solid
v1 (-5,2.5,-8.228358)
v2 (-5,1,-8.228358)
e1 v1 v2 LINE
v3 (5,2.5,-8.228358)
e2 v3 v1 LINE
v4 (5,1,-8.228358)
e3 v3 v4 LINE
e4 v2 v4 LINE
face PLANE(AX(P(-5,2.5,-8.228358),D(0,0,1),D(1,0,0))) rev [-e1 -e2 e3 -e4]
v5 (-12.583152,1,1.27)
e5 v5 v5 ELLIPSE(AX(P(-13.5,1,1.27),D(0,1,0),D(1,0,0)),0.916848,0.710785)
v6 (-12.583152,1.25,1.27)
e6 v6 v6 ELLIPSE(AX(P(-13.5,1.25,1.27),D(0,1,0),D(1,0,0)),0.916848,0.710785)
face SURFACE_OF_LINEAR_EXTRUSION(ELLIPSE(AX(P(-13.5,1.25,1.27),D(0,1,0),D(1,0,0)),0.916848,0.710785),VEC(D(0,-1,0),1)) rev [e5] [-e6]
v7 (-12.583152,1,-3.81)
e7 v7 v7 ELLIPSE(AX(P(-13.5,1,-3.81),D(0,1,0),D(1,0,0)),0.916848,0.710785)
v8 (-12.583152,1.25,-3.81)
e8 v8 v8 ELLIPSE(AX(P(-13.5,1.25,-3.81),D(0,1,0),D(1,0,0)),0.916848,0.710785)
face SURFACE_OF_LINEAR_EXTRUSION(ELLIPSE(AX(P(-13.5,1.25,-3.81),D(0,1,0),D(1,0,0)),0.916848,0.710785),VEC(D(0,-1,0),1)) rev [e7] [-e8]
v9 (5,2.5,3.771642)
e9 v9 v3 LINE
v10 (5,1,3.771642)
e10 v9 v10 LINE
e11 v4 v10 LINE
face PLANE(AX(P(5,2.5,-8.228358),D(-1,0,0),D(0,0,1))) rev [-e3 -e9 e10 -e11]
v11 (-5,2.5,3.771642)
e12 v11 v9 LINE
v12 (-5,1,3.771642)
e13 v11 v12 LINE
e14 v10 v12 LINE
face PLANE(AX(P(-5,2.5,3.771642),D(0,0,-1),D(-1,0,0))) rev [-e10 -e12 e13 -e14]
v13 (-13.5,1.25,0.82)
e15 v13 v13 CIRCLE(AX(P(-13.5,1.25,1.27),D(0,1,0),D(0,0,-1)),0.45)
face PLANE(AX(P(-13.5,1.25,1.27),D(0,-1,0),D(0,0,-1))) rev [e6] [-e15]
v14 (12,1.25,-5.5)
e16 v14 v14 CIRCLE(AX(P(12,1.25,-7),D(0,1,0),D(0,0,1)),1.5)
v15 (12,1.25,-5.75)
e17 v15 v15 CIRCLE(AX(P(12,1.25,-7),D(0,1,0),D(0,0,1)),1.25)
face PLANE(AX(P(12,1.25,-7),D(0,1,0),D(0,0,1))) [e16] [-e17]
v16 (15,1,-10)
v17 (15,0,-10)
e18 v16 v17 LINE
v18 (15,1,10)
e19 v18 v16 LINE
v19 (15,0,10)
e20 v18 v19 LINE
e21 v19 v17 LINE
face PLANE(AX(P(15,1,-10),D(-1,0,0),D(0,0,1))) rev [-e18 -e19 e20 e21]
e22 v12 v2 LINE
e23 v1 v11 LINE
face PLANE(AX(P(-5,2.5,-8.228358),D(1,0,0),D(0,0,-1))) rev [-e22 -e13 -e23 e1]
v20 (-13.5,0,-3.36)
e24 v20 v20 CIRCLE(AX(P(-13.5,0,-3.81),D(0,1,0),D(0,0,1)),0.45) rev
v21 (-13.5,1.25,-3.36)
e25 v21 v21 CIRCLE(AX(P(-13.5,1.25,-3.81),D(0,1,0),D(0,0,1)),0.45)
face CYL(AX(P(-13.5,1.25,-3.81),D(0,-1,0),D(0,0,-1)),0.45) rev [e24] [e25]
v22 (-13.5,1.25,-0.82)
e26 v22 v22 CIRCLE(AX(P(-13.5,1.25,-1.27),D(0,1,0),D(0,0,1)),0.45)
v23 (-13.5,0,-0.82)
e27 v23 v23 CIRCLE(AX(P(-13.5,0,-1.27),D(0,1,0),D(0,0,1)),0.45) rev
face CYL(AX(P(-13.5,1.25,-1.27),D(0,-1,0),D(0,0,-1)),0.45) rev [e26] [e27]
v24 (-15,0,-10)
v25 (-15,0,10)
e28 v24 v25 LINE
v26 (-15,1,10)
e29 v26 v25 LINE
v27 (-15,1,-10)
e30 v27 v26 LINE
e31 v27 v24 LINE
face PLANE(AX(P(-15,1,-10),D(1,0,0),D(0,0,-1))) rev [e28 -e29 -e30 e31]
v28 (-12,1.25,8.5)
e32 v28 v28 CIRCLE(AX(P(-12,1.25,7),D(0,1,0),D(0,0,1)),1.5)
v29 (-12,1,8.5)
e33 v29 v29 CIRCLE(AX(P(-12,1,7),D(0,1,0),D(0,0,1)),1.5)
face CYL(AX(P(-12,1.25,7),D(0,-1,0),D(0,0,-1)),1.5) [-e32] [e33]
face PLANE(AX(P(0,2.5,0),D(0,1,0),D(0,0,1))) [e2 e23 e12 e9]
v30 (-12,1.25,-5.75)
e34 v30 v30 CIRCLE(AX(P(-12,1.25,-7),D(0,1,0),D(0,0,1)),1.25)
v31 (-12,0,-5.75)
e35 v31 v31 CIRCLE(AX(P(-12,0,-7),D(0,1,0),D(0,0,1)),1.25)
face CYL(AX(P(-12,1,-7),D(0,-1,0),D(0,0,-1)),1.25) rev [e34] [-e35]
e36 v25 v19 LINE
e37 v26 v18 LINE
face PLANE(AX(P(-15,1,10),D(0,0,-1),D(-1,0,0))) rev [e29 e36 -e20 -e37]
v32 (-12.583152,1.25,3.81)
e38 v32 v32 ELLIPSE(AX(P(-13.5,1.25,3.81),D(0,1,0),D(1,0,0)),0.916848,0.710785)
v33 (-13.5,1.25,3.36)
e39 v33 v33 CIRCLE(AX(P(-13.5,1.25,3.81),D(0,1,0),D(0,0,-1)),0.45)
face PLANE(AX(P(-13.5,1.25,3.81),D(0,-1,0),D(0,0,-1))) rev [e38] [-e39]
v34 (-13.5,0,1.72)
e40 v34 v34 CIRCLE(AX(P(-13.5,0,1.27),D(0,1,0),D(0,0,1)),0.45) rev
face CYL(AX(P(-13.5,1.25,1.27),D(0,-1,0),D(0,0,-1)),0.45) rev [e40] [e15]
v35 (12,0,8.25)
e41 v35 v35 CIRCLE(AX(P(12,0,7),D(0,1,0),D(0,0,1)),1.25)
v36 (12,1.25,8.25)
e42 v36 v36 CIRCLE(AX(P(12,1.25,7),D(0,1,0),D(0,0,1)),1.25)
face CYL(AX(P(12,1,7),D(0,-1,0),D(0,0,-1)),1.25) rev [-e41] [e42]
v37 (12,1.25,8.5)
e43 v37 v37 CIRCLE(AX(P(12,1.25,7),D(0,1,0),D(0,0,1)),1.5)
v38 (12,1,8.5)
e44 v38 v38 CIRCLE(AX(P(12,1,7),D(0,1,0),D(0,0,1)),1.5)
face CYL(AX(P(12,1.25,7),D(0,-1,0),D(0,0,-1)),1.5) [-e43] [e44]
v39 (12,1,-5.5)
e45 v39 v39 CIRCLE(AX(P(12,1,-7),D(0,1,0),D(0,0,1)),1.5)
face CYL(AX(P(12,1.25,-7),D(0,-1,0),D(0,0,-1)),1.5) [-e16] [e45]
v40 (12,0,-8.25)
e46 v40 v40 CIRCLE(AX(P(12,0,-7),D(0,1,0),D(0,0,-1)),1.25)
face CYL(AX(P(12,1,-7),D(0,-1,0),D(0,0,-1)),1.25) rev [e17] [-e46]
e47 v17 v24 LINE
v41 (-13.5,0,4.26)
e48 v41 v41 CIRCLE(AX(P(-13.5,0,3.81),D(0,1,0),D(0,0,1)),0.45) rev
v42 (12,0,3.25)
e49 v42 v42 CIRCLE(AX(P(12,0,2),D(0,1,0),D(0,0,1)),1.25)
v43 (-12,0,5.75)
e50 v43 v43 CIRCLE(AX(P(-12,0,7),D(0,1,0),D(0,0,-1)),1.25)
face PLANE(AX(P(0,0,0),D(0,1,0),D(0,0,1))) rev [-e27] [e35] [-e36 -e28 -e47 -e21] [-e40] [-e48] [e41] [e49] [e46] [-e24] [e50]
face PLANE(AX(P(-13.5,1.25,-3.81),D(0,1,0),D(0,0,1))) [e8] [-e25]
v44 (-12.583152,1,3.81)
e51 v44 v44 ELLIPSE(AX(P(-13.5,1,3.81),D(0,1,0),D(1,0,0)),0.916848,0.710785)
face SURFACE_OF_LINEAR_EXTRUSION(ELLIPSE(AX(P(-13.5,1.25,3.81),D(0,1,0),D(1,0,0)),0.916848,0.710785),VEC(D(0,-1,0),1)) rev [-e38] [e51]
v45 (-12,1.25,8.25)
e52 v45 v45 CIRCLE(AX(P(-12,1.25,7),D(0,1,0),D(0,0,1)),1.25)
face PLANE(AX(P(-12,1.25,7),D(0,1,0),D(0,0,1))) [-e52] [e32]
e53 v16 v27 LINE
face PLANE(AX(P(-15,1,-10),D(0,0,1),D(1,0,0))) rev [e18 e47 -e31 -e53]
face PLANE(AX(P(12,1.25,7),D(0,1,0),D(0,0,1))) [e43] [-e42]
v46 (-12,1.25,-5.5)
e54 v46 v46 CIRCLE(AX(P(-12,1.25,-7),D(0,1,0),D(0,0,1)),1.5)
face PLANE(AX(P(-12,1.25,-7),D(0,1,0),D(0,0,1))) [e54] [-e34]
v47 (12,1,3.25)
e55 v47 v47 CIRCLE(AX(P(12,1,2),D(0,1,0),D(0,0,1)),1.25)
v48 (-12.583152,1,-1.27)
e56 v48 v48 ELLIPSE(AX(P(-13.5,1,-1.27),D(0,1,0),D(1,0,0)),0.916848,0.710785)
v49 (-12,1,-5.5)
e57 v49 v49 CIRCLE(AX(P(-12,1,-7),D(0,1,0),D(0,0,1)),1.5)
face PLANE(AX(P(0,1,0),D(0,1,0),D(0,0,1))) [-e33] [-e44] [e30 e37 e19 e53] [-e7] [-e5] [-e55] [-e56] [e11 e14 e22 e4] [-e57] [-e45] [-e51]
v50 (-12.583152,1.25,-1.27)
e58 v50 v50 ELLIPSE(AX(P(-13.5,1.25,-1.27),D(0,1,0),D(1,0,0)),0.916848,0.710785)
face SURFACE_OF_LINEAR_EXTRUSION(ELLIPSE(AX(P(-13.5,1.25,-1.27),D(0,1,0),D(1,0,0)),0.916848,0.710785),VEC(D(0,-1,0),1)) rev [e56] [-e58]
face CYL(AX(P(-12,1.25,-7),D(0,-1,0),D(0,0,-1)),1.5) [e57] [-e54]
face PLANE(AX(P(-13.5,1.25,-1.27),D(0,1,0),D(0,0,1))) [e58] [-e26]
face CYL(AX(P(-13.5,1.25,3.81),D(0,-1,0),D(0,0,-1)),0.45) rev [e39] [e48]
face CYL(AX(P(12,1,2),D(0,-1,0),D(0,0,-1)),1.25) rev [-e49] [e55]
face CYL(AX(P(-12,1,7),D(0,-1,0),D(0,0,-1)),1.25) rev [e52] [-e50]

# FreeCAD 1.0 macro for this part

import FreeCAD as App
import Part
import Sketcher
from FreeCAD import Vector
Q = App.Units.Quantity


def add_polygon(sketch, points):
    """Adds a closed chain of lines whose ends are joined by coincident constraints."""
    first, n = sketch.GeometryCount, len(points)
    for a, b in zip(points, points[1:] + points[:1]):
        sketch.addGeometry(Part.LineSegment(App.Vector(*a, 0), App.Vector(*b, 0)), False)
    for i in range(n):
        sketch.addConstraint(Sketcher.Constraint("Coincident", first + i, 2, first + (i + 1) % n, 1))

doc = App.newDocument("Part")
params = doc.addObject("Spreadsheet::Sheet", "Params")
for row, (alias, value) in enumerate([
    ("sketch1_diameter", "2.5 mm"),
    ("sketch1_width", "30 mm"),
    ("sketch1_height", "20 mm"),
    ("pad1_length", "1 mm"),
    ("sketch2_width", "10 mm"),
    ("sketch2_height", "12 mm"),
    ("pad2_length", "2.5 mm"),
    ("sketch3_diameter", "3 mm"),
    ("sketch3_diameter2", "2.5 mm"),
    ("sketch3_diameter3", "0.9 mm"),
    ("pad3_length", "0.25 mm"),
    ("sketch4_diameter", "0.9 mm"),
], start=1):
    params.set(f"A{row}", alias)
    params.set(f"B{row}", "=" + value)
    params.setAlias(f"B{row}", alias)

body = doc.addObject("PartDesign::Body", "Body")

# Sketch on XZ plane
sketch1 = body.newObject("Sketcher::SketchObject", "Sketch")
sketch1.AttachmentSupport = (doc.getObject("XZ_Plane"), [""])
sketch1.MapMode = "FlatFace"
add_polygon(sketch1, [(-15, -10), (-15, 10), (15, 10), (15, -10)])  # lines 0-3
sketch1.addGeometry(Part.Circle(Vector(-12, 7, 0), Vector(0, 0, 1), 1.2), False)  # 4
sketch1.addGeometry(Part.Circle(Vector(12, 7, 0), Vector(0, 0, 1), 1.2), False)  # 5
sketch1.addGeometry(Part.Circle(Vector(12, 2, 0), Vector(0, 0, 1), 1.2), False)  # 6
sketch1.addGeometry(Part.Circle(Vector(-12, -7, 0), Vector(0, 0, 1), 1.2), False)  # 7
sketch1.addGeometry(Part.Circle(Vector(12, -7, 0), Vector(0, 0, 1), 1.2), False)  # 8
sketch1.addConstraint([
    Sketcher.Constraint("Vertical", 0),
    Sketcher.Constraint("Horizontal", 1),
    Sketcher.Constraint("Vertical", 2),
    Sketcher.Constraint("Horizontal", 3),
    Sketcher.Constraint("Equal", 4, 5),
    Sketcher.Constraint("Equal", 5, 6),
    Sketcher.Constraint("Equal", 6, 7),
    Sketcher.Constraint("Equal", 7, 8),
    Sketcher.Constraint("Symmetric", 5, 3, 7, 3, -1, 1),
    Sketcher.Constraint("Symmetric", 4, 3, 8, 3, -1, 1),
    Sketcher.Constraint("Symmetric", 0, 2, 2, 2, -1, 1),
    Sketcher.Constraint("Symmetric", 4, 3, 5, 3, -2),
    Sketcher.Constraint("Vertical", 5, 3, 6, 3),
    Sketcher.Constraint("Diameter", 4, Q("2.5 mm")),
    Sketcher.Constraint("DistanceX", 1, 1, 1, 2, Q("30 mm")),
    Sketcher.Constraint("DistanceY", 0, 1, 0, 2, Q("20 mm")),
    Sketcher.Constraint("DistanceX", 4, 3, -1, 1, Q("12 mm")),
    Sketcher.Constraint("DistanceY", -1, 1, 4, 3, Q("7 mm")),
    Sketcher.Constraint("DistanceY", -1, 1, 6, 3, Q("2 mm")),
])
sketch1.setExpression("Constraints[17]", "Params.sketch1_diameter")
sketch1.setExpression("Constraints[18]", "Params.sketch1_width")
sketch1.setExpression("Constraints[19]", "Params.sketch1_height")
pad1 = body.newObject("PartDesign::Pad", "Pad")
pad1.Profile = sketch1
pad1.setExpression("Length", "Params.pad1_length")
pad1.Reversed = True

# Sketch on XZ plane
sketch2 = body.newObject("Sketcher::SketchObject", "Sketch001")
sketch2.AttachmentSupport = (doc.getObject("XZ_Plane"), [""])
sketch2.MapMode = "FlatFace"
add_polygon(sketch2, [(-5, -8), (-5, 4), (5, 4), (5, -8)])  # lines 0-3
sketch2.addConstraint([
    Sketcher.Constraint("Vertical", 0),
    Sketcher.Constraint("Horizontal", 1),
    Sketcher.Constraint("Vertical", 2),
    Sketcher.Constraint("Horizontal", 3),
    Sketcher.Constraint("DistanceX", 1, 1, 1, 2, Q("10 mm")),
    Sketcher.Constraint("DistanceY", 0, 1, 0, 2, Q("12 mm")),
    Sketcher.Constraint("DistanceX", 0, 2, -1, 1, Q("5 mm")),
    Sketcher.Constraint("DistanceY", -1, 1, 0, 2, Q("3.771642 mm")),
])
sketch2.setExpression("Constraints[8]", "Params.sketch2_width")
sketch2.setExpression("Constraints[9]", "Params.sketch2_height")
pad2 = body.newObject("PartDesign::Pad", "Pad001")
pad2.Profile = sketch2
pad2.setExpression("Length", "Params.pad2_length")
pad2.Reversed = True

# Sketch on XZ plane
sketch3 = body.newObject("Sketcher::SketchObject", "Sketch002")
sketch3.AttachmentSupport = (doc.getObject("XZ_Plane"), [""])
sketch3.MapMode = "FlatFace"
sketch3.AttachmentOffset = App.Placement(Vector(0, 0, -1), App.Rotation())
sketch3.addGeometry([
    Part.Circle(Vector(-12, -7, 0), Vector(0, 0, 1), 1.5),  # 0
    Part.Circle(Vector(-12, -7, 0), Vector(0, 0, 1), 1.25),  # 1
    Part.Circle(Vector(12, -7, 0), Vector(0, 0, 1), 1.5),  # 2
    Part.Circle(Vector(12, -7, 0), Vector(0, 0, 1), 1.25),  # 3
    Part.Circle(Vector(12, 7, 0), Vector(0, 0, 1), 1.5),  # 4
    Part.Circle(Vector(12, 7, 0), Vector(0, 0, 1), 1.25),  # 5
    Part.Circle(Vector(-12, 7, 0), Vector(0, 0, 1), 1.5),  # 6
    Part.Circle(Vector(-12, 7, 0), Vector(0, 0, 1), 1.25),  # 7
    Part.Ellipse(Vector(-12.583152, -3.81, 0), Vector(-13.5, -3.099215, 0), Vector(-13.5, -3.81, 0)),  # 8
    Part.Circle(Vector(-13.5, -3.81, 0), Vector(0, 0, 1), 0.45),  # 9
    Part.Ellipse(Vector(-12.583152, -1.27, 0), Vector(-13.5, -0.559215, 0), Vector(-13.5, -1.27, 0)),  # 10
    Part.Circle(Vector(-13.5, -1.27, 0), Vector(0, 0, 1), 0.45),  # 11
    Part.Ellipse(Vector(-12.583152, 1.27, 0), Vector(-13.5, 1.980785, 0), Vector(-13.5, 1.27, 0)),  # 12
    Part.Circle(Vector(-13.5, 1.27, 0), Vector(0, 0, 1), 0.45),  # 13
    Part.Ellipse(Vector(-12.583152, 3.81, 0), Vector(-13.5, 4.520785, 0), Vector(-13.5, 3.81, 0)),  # 14
    Part.Circle(Vector(-13.5, 3.81, 0), Vector(0, 0, 1), 0.45),  # 15
], False)
sketch3.addConstraint([
    Sketcher.Constraint("Block", 8),
    Sketcher.Constraint("Block", 10),
    Sketcher.Constraint("Block", 12),
    Sketcher.Constraint("Block", 14),
    Sketcher.Constraint("Coincident", 1, 3, 0, 3),
    Sketcher.Constraint("Coincident", 3, 3, 2, 3),
    Sketcher.Constraint("Coincident", 5, 3, 4, 3),
    Sketcher.Constraint("Coincident", 7, 3, 6, 3),
    Sketcher.Constraint("Equal", 0, 2),
    Sketcher.Constraint("Equal", 1, 3),
    Sketcher.Constraint("Equal", 2, 4),
    Sketcher.Constraint("Equal", 3, 5),
    Sketcher.Constraint("Equal", 4, 6),
    Sketcher.Constraint("Equal", 5, 7),
    Sketcher.Constraint("Equal", 9, 11),
    Sketcher.Constraint("Equal", 11, 13),
    Sketcher.Constraint("Equal", 13, 15),
    Sketcher.Constraint("Symmetric", 0, 3, 4, 3, -1, 1),
    Sketcher.Constraint("Symmetric", 2, 3, 6, 3, -1, 1),
    Sketcher.Constraint("Symmetric", 0, 3, 2, 3, -2),
    Sketcher.Constraint("Symmetric", 11, 3, 13, 3, -1),
    Sketcher.Constraint("Symmetric", 9, 3, 15, 3, -1),
    Sketcher.Constraint("Vertical", 9, 3, 11, 3),
    Sketcher.Constraint("Diameter", 0, Q("3 mm")),
    Sketcher.Constraint("Diameter", 1, Q("2.5 mm")),
    Sketcher.Constraint("Diameter", 9, Q("0.9 mm")),
    Sketcher.Constraint("DistanceX", 0, 3, -1, 1, Q("12 mm")),
    Sketcher.Constraint("DistanceY", 0, 3, -1, 1, Q("7 mm")),
    Sketcher.Constraint("DistanceX", 9, 3, -1, 1, Q("13.5 mm")),
    Sketcher.Constraint("DistanceY", 9, 3, -1, 1, Q("3.81 mm")),
    Sketcher.Constraint("DistanceY", 11, 3, -1, 1, Q("1.27 mm")),
])
sketch3.setExpression("Constraints[23]", "Params.sketch3_diameter")
sketch3.setExpression("Constraints[24]", "Params.sketch3_diameter2")
sketch3.setExpression("Constraints[25]", "Params.sketch3_diameter3")
pad3 = body.newObject("PartDesign::Pad", "Pad002")
pad3.Profile = sketch3
pad3.setExpression("Length", "Params.pad3_length")
pad3.Reversed = True

# Sketch on XZ plane
sketch4 = body.newObject("Sketcher::SketchObject", "Sketch003")
sketch4.AttachmentSupport = (doc.getObject("XZ_Plane"), [""])
sketch4.MapMode = "FlatFace"
sketch4.addGeometry([
    Part.Circle(Vector(-13.5, -3.81, 0), Vector(0, 0, 1), 0.45),
    Part.Circle(Vector(-13.5, -1.27, 0), Vector(0, 0, 1), 0.45),
    Part.Circle(Vector(-13.5, 1.27, 0), Vector(0, 0, 1), 0.45),
    Part.Circle(Vector(-13.5, 3.81, 0), Vector(0, 0, 1), 0.45),
], False)
sketch4.addConstraint([
    Sketcher.Constraint("Equal", 0, 1),
    Sketcher.Constraint("Equal", 1, 2),
    Sketcher.Constraint("Equal", 2, 3),
    Sketcher.Constraint("Symmetric", 1, 3, 2, 3, -1),
    Sketcher.Constraint("Symmetric", 0, 3, 3, 3, -1),
    Sketcher.Constraint("Vertical", 0, 3, 1, 3),
    Sketcher.Constraint("Diameter", 0, Q("0.9 mm")),
    Sketcher.Constraint("DistanceX", 0, 3, -1, 1, Q("13.5 mm")),
    Sketcher.Constraint("DistanceY", 0, 3, -1, 1, Q("3.81 mm")),
    Sketcher.Constraint("DistanceY", 1, 3, -1, 1, Q("1.27 mm")),
])
sketch4.setExpression("Constraints[6]", "Params.sketch4_diameter")
pocket1 = body.newObject("PartDesign::Pocket", "Pocket")
pocket1.Profile = sketch4
pocket1.Type = "ThroughAll"
pocket1.Midplane = True

doc.recompute()
